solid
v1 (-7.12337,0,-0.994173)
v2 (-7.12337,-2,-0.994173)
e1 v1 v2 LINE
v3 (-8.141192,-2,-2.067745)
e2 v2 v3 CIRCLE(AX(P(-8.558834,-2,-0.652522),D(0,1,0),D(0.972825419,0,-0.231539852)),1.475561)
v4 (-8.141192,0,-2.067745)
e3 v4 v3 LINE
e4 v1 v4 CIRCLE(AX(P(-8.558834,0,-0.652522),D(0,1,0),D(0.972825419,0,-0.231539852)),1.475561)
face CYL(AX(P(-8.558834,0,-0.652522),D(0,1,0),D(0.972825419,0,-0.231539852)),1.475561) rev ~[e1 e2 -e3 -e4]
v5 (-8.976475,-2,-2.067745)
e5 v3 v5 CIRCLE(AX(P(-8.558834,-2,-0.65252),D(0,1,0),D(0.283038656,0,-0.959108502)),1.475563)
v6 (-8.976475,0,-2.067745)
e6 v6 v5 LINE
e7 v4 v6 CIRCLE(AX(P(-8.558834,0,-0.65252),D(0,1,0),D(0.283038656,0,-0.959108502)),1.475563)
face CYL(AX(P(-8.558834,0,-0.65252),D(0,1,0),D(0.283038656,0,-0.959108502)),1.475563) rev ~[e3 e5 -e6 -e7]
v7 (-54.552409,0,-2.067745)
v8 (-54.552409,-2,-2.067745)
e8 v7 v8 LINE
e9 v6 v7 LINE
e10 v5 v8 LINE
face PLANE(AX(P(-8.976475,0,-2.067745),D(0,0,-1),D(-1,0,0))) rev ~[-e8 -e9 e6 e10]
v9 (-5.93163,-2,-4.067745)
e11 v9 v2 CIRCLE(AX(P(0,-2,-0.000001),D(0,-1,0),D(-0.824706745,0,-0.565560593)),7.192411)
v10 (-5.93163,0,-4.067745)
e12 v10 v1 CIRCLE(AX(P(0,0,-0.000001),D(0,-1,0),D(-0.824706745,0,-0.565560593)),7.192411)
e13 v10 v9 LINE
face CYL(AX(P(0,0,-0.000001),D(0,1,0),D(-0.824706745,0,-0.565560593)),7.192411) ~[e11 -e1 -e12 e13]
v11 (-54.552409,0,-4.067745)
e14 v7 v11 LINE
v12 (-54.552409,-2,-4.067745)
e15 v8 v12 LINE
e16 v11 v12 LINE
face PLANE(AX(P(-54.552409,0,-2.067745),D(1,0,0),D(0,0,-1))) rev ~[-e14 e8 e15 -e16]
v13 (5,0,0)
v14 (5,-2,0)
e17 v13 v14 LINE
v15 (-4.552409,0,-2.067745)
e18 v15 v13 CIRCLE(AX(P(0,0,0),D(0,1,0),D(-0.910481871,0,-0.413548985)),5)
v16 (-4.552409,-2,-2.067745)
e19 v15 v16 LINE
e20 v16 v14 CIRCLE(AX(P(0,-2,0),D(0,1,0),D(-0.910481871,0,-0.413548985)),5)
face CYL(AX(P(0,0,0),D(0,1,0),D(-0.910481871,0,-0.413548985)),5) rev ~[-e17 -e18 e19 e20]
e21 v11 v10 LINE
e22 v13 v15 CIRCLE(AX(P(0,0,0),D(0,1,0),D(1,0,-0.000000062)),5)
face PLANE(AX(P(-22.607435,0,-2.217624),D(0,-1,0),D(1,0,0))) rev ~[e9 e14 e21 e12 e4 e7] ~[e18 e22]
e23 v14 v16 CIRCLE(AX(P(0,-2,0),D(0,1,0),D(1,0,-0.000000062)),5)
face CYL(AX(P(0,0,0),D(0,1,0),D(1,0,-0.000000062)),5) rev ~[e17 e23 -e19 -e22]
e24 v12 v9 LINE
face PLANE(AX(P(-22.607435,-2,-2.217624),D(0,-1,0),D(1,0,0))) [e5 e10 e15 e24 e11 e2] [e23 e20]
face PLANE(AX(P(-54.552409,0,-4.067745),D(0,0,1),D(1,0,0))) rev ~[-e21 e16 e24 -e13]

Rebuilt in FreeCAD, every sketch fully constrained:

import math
import FreeCAD as App
import Part
import Sketcher

V = App.Vector
Q = App.Units.Quantity

doc = App.newDocument("Part")
body = doc.addObject("PartDesign::Body", "Body")

sketch1 = body.newObject("Sketcher::SketchObject", "Sketch")
sketch1.AttachmentSupport = (doc.getObject("XZ_Plane"), [""])
sketch1.MapMode = "FlatFace"
sketch1.addGeometry([
    Part.LineSegment(V(-54.6, -4.1, 0), V(-5.9, -4.1, 0)),
    Part.ArcOfCircle(Part.Circle(V(0, 0, 0), V(0, 0, 1), 7.2), math.radians(-146), math.radians(188)),
    Part.ArcOfCircle(Part.Circle(V(-8.6, -0.7, 0), V(0, 0, 1), 1.5), math.radians(-74), math.radians(-13)),
    Part.ArcOfCircle(Part.Circle(V(-8.6, -0.7, 0), V(0, 0, 1), 1.5), math.radians(-106), math.radians(-74)),
    Part.LineSegment(V(-9, -2.1, 0), V(-54.6, -2.1, 0)),
    Part.LineSegment(V(-54.6, -2.1, 0), V(-54.6, -4.1, 0)),
    Part.ArcOfCircle(Part.Circle(V(0, 0, 0), V(0, 0, 1), 5), math.radians(-156), math.radians(0)),
    Part.ArcOfCircle(Part.Circle(V(0, 0, 0), V(0, 0, 1), 5), math.radians(0), math.radians(204)),
], False)
sketch1.addConstraint([
    Sketcher.Constraint("Coincident", 0, 2, 1, 1),
    Sketcher.Constraint("Coincident", 1, 2, 2, 2),
    Sketcher.Constraint("Tangent", 2, 1, 3, 2),
    Sketcher.Constraint("Coincident", 3, 1, 4, 1),
    Sketcher.Constraint("Coincident", 4, 2, 5, 1),
    Sketcher.Constraint("Coincident", 5, 2, 0, 1),
    Sketcher.Constraint("Tangent", 6, 1, 7, 2),
    Sketcher.Constraint("Coincident", 7, 1, 6, 2),
    Sketcher.Constraint("Horizontal", 0),
    Sketcher.Constraint("Horizontal", 4),
    Sketcher.Constraint("Vertical", 5),
    Sketcher.Constraint("Coincident", 1, 3, -1, 1),
    Sketcher.Constraint("Coincident", 6, 3, -1, 1),
    Sketcher.Constraint("PointOnObject", 7, 1, -1),
    Sketcher.Constraint("Horizontal", 2, 1, 3, 1),
    Sketcher.Constraint("Horizontal", 4, 2, 6, 1),
    Sketcher.Constraint("Radius", 6, Q("5 mm")),
    Sketcher.Constraint("DistanceY", 5, 2, 5, 1, Q("2 mm")),
    Sketcher.Constraint("Radius", 1, Q("7.192411 mm")),
    Sketcher.Constraint("Radius", 2, Q("1.475561 mm")),
    Sketcher.Constraint("Radius", 3, Q("1.475563 mm")),
    Sketcher.Constraint("DistanceX", 0, 1, 0, 2, Q("48.620779 mm")),
    Sketcher.Constraint("DistanceX", 4, 2, 4, 1, Q("45.575934 mm")),
    Sketcher.Constraint("DistanceY", 2, 3, -1, 1, Q("0.652522 mm")),
    Sketcher.Constraint("DistanceX", 0, 2, -1, 1, Q("5.93163 mm")),
])
pad1 = body.newObject("PartDesign::Pad", "Pad")
pad1.Profile = sketch1
pad1.Length = 2

doc.recompute()
